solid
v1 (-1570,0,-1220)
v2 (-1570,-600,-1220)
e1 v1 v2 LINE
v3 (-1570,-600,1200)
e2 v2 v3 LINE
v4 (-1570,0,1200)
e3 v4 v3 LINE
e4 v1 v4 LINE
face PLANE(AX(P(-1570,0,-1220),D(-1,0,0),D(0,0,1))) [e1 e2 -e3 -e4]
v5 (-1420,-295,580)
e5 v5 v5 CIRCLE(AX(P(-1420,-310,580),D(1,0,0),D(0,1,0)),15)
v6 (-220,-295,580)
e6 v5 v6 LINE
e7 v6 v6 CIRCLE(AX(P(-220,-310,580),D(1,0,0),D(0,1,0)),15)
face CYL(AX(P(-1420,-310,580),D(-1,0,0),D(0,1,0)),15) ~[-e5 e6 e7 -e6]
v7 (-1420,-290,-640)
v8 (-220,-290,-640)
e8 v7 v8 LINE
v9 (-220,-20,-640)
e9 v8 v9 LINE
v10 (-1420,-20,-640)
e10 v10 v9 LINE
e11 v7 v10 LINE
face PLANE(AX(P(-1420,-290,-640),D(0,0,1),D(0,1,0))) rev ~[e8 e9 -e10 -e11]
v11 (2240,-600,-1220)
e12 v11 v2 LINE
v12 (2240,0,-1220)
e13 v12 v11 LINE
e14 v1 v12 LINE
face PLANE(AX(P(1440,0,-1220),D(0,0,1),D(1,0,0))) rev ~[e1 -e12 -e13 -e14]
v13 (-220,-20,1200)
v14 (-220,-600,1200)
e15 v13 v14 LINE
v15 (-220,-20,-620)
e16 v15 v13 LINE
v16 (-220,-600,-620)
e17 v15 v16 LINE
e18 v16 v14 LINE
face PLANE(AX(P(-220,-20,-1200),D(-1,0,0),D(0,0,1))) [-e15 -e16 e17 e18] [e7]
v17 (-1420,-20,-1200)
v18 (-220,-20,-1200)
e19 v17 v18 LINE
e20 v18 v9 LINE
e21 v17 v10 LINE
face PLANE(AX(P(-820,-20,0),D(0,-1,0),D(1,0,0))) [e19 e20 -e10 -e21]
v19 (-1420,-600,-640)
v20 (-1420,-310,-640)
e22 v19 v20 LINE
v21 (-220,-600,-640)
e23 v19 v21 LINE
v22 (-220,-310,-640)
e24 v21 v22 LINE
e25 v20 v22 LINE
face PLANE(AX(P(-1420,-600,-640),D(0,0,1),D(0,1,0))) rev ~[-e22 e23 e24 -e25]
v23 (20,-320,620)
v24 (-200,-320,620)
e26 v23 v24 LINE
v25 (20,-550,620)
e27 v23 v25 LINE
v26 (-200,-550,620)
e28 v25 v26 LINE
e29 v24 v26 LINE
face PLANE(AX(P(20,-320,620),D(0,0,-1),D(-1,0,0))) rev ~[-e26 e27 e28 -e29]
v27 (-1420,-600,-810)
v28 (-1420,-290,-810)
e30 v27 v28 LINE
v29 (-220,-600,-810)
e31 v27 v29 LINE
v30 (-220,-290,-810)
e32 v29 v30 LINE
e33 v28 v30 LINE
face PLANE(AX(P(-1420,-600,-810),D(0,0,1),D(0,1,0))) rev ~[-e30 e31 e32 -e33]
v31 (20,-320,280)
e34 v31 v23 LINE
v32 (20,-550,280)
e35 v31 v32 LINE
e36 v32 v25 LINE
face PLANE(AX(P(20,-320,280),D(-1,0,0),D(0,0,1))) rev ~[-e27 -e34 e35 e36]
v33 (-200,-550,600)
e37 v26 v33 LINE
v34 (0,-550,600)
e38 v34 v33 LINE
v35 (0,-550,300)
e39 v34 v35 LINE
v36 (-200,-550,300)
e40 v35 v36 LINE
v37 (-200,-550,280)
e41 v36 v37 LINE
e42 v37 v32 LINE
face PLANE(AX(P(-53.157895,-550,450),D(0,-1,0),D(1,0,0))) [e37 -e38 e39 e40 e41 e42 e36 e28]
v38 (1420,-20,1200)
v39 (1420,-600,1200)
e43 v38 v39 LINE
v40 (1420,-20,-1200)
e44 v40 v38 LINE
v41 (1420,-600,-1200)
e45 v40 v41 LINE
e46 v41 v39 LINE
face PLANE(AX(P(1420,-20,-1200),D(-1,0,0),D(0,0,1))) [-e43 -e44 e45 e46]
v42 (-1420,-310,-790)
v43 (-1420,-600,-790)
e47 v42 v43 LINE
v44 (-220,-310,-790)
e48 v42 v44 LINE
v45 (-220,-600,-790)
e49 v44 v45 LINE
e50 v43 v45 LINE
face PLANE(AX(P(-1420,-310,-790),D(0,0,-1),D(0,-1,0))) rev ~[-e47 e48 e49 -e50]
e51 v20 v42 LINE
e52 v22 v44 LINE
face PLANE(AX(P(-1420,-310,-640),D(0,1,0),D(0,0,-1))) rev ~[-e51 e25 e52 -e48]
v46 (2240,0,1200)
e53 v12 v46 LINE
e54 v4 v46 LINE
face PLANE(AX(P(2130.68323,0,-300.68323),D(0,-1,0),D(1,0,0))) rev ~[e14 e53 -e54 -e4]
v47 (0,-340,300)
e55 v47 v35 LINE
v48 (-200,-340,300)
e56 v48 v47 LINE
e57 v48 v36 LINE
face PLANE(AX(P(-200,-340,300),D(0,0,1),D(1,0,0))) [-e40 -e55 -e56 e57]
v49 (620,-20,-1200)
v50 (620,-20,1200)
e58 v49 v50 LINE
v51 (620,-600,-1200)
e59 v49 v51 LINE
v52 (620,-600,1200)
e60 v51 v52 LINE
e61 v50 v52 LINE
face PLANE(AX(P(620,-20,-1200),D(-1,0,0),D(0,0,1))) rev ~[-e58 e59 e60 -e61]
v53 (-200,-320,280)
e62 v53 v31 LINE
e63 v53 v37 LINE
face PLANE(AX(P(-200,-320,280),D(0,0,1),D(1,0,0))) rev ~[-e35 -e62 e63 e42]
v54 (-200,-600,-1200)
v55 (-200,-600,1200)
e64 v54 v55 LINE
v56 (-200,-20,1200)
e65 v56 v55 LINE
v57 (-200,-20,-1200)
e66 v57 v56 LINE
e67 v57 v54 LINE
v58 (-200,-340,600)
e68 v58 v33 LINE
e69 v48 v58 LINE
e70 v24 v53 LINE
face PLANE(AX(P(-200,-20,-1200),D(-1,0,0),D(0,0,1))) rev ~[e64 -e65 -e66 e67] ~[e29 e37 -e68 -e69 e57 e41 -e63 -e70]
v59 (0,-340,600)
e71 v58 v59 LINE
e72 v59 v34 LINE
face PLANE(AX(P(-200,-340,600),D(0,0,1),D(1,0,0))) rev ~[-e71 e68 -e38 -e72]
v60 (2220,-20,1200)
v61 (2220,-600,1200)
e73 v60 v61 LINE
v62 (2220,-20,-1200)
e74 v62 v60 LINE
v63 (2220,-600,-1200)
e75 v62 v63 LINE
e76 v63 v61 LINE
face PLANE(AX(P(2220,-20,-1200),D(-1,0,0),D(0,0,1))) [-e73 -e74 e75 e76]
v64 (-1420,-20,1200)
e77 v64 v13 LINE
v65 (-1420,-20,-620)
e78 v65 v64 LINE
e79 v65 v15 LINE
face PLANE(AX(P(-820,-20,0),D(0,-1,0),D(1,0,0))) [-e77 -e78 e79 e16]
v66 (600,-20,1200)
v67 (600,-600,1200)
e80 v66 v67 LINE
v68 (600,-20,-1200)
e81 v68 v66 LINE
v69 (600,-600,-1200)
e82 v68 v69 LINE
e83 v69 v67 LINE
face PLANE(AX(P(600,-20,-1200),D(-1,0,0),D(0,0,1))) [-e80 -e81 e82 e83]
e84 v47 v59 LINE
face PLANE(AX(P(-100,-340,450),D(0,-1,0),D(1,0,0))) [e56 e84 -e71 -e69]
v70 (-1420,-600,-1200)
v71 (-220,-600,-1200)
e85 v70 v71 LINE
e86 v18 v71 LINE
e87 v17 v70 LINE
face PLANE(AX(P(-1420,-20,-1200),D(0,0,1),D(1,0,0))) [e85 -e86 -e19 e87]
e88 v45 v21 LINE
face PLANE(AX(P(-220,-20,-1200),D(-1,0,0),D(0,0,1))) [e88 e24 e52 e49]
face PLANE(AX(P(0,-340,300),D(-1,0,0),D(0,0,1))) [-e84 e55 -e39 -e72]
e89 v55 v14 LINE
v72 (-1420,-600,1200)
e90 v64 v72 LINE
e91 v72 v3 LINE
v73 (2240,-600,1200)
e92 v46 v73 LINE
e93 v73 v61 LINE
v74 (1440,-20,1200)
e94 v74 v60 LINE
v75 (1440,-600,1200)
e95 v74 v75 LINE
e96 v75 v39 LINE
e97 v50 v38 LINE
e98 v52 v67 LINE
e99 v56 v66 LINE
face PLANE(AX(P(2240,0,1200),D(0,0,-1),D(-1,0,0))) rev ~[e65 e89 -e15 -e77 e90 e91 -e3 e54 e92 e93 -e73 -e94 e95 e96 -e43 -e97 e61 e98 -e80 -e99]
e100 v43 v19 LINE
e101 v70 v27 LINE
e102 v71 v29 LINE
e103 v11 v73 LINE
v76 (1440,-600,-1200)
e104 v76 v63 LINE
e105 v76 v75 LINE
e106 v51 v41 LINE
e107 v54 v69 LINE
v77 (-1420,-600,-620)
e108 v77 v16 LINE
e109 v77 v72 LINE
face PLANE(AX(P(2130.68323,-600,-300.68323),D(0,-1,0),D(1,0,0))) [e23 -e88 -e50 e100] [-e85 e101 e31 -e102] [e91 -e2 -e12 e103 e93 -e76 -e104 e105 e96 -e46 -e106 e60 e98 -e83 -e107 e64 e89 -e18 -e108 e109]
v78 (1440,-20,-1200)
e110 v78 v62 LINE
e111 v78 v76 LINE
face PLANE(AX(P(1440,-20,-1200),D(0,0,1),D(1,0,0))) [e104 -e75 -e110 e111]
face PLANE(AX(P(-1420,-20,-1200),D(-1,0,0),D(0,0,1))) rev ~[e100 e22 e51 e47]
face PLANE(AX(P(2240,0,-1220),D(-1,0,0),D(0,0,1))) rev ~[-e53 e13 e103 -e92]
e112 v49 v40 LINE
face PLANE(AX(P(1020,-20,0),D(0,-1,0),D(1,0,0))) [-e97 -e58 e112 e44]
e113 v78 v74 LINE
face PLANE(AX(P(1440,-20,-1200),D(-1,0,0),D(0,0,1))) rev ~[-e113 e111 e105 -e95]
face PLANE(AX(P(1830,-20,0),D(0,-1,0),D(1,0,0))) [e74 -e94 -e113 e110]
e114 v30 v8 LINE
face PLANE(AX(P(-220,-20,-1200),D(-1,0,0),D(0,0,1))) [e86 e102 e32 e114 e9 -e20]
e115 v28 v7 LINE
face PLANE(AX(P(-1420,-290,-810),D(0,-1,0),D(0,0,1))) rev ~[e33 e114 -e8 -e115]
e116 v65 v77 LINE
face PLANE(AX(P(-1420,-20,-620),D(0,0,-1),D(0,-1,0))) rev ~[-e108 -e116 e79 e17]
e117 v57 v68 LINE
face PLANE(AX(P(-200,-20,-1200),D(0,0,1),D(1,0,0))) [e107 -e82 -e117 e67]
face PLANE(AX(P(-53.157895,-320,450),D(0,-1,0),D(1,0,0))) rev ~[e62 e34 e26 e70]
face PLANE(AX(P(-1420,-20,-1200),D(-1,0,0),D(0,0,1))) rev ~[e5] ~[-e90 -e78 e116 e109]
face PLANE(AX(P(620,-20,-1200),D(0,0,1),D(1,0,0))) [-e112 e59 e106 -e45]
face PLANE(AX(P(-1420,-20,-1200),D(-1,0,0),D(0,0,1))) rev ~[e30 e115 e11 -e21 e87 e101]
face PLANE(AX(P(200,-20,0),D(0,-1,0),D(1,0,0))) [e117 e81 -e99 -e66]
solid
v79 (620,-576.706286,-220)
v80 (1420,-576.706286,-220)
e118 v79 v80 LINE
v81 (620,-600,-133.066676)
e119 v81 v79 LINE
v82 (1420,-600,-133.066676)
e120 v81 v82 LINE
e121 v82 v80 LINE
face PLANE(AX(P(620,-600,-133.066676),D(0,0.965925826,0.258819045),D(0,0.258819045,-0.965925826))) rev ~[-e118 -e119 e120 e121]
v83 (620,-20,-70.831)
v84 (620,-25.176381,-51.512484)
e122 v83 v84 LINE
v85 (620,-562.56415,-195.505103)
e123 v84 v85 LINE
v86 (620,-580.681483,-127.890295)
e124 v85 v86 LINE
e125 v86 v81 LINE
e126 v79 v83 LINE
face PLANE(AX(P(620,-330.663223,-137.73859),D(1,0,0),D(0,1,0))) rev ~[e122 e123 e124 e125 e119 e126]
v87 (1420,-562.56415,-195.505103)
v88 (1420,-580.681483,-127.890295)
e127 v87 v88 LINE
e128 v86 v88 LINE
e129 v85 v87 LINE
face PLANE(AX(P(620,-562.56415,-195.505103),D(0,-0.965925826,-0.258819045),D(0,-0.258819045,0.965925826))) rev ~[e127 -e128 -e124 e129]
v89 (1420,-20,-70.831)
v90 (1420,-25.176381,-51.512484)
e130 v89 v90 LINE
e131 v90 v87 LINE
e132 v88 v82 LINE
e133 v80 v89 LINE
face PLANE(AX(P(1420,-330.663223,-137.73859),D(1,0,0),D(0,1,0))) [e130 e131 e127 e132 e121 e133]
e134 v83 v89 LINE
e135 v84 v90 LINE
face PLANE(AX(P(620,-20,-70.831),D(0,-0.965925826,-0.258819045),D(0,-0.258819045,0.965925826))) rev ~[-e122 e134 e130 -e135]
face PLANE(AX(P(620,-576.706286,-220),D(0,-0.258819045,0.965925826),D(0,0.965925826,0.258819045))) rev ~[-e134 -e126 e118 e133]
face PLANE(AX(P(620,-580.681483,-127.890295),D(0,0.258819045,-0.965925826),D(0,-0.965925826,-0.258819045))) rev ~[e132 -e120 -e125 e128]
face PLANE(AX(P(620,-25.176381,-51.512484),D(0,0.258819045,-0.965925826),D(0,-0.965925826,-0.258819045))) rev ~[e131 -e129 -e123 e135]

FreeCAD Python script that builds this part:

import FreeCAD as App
import Part
import Sketcher
Q = App.Units.Quantity


def add_polygon(sketch, points):
    """Adds a closed chain of lines whose ends are joined by coincident constraints."""
    first, n = sketch.GeometryCount, len(points)
    for a, b in zip(points, points[1:] + points[:1]):
        sketch.addGeometry(Part.LineSegment(App.Vector(*a, 0), App.Vector(*b, 0)), False)
    for i in range(n):
        sketch.addConstraint(Sketcher.Constraint("Coincident", first + i, 2, first + (i + 1) % n, 1))

doc = App.newDocument("Part")
params = doc.addObject("Spreadsheet::Sheet", "Params")
for row, (alias, value) in enumerate([
    ("sketch1_width", "3010 mm"),
    ("sketch1_height", "2420 mm"),
    ("pad1_length", "600 mm"),
    ("sketch2_width", "800 mm"),
    ("sketch2_width2", "1200 mm"),
    ("sketch2_height", "2400 mm"),
    ("pocket1_length", "580 mm"),
    ("sketch3_diameter", "30 mm"),
    ("sketch3_width", "580 mm"),
    ("sketch3_width2", "290 mm"),
    ("sketch3_width3", "310 mm"),
    ("sketch3_height", "20 mm"),
    ("pad2_length", "1200 mm"),
    ("sketch4_width", "220 mm"),
    ("sketch4_height", "340 mm"),
    ("pad3_length", "230 mm"),
    ("sketch5_width", "200 mm"),
    ("sketch5_height", "300 mm"),
    ("pocket2_length", "260 mm"),
    ("sketch6_width", "800 mm"),
    ("sketch6_height", "2420 mm"),
    ("pad4_length", "600 mm"),
    ("sketch7_width", "780 mm"),
    ("sketch7_height", "2400 mm"),
    ("pocket3_length", "580 mm"),
    ("sketch8_length", "20 mm"),
    ("sketch8_length2", "90 mm"),
    ("pad5_length", "800 mm"),
], start=1):
    params.set(f"A{row}", alias)
    params.set(f"B{row}", "=" + value)
    params.setAlias(f"B{row}", alias)

body = doc.addObject("PartDesign::Body", "Body")

# Sketch on XZ plane
sketch1 = doc.addObject("Sketcher::SketchObject", "Sketch")
body.addObject(sketch1)
sketch1.AttachmentSupport = (doc.XZ_Plane, [""])
sketch1.MapMode = "FlatFace"
add_polygon(sketch1, [(-1570, 1200), (-1570, -1220), (1440, -1220), (1440, 1200)])  # lines 0-3
sketch1.addConstraint([
    Sketcher.Constraint("Vertical", 0),
    Sketcher.Constraint("Horizontal", 1),
    Sketcher.Constraint("Vertical", 2),
    Sketcher.Constraint("Horizontal", 3),
    Sketcher.Constraint("DistanceX", 1, 1, 1, 2, 3010.0),
    Sketcher.Constraint("DistanceY", 0, 2, 0, 1, 2420.0),
    Sketcher.Constraint("DistanceX", 0, 2, -1, 1, 1570.0),
    Sketcher.Constraint("DistanceY", 0, 2, -1, 1, 1220.0),
])
sketch1.setExpression("Constraints[8]", "Params.sketch1_width")
sketch1.setExpression("Constraints[9]", "Params.sketch1_height")
pad1 = doc.addObject("PartDesign::Pad", "Pad")
body.addObject(pad1)
pad1.Profile = sketch1
pad1.setExpression("Length", "Params.pad1_length")

# Sketch on XZ plane
sketch2 = doc.addObject("Sketcher::SketchObject", "Sketch001")
body.addObject(sketch2)
sketch2.AttachmentSupport = (doc.XZ_Plane, [""])
sketch2.MapMode = "FlatFace"
sketch2.AttachmentOffset = App.Placement(App.Vector(0, 0, 20), App.Rotation())
add_polygon(sketch2, [(620, 1200), (620, -1200), (1420, -1200), (1420, 1200)])  # lines 0-3
add_polygon(sketch2, [(-200, 1200), (-200, -1200), (600, -1200), (600, 1200)])  # lines 4-7
add_polygon(sketch2, [(-1420, 1200), (-1420, -1200), (-220, -1200), (-220, 1200)])  # lines 8-11
sketch2.addConstraint([
    Sketcher.Constraint("Vertical", 0),
    Sketcher.Constraint("Horizontal", 1),
    Sketcher.Constraint("Vertical", 2),
    Sketcher.Constraint("Horizontal", 3),
    Sketcher.Constraint("Vertical", 4),
    Sketcher.Constraint("Horizontal", 5),
    Sketcher.Constraint("Vertical", 6),
    Sketcher.Constraint("Horizontal", 7),
    Sketcher.Constraint("Vertical", 8),
    Sketcher.Constraint("Horizontal", 9),
    Sketcher.Constraint("Vertical", 10),
    Sketcher.Constraint("Horizontal", 11),
    Sketcher.Constraint("Symmetric", 2, 2, 8, 2, -1, 1),
    Sketcher.Constraint("Horizontal", 1, 2, 4, 2),
    Sketcher.Constraint("Horizontal", 3, 2, 6, 2),
    Sketcher.Constraint("Horizontal", 5, 2, 8, 2),
    Sketcher.Constraint("Horizontal", 7, 2, 10, 2),
    Sketcher.Constraint("Equal", 3, 5),
    Sketcher.Constraint("DistanceX", 1, 1, 1, 2, 800.0),
    Sketcher.Constraint("DistanceX", 9, 1, 9, 2, 1200.0),
    Sketcher.Constraint("DistanceY", 0, 2, 0, 1, 2400.0),
    Sketcher.Constraint("DistanceX", -1, 1, 0, 2, 620.0),
    Sketcher.Constraint("DistanceX", 4, 2, -1, 1, 200.0),
])
sketch2.setExpression("Constraints[30]", "Params.sketch2_width")
sketch2.setExpression("Constraints[31]", "Params.sketch2_width2")
sketch2.setExpression("Constraints[32]", "Params.sketch2_height")
pocket1 = doc.addObject("PartDesign::Pocket", "Pocket")
body.addObject(pocket1)
pocket1.Profile = sketch2
pocket1.setExpression("Length", "Params.pocket1_length")
pocket1.Reversed = True

# Sketch on YZ plane
sketch3 = doc.addObject("Sketcher::SketchObject", "Sketch002")
body.addObject(sketch3)
sketch3.AttachmentSupport = (doc.YZ_Plane, [""])
sketch3.MapMode = "FlatFace"
sketch3.AttachmentOffset = App.Placement(App.Vector(0, 0, -1420), App.Rotation())
sketch3.addGeometry(Part.Circle(App.Vector(-310, 580, 0), App.Vector(0, 0, 1), 15), False)  # 0
add_polygon(sketch3, [(-20, -620), (-600, -620), (-600, -640), (-310, -640), (-310, -790), (-600, -790), (-600, -810), (-290, -810), (-290, -640), (-20, -640)])  # lines 1-10
sketch3.addConstraint([
    Sketcher.Constraint("Horizontal", 1),
    Sketcher.Constraint("Vertical", 2),
    Sketcher.Constraint("Horizontal", 3),
    Sketcher.Constraint("Vertical", 4),
    Sketcher.Constraint("Horizontal", 5),
    Sketcher.Constraint("Vertical", 6),
    Sketcher.Constraint("Horizontal", 7),
    Sketcher.Constraint("Vertical", 8),
    Sketcher.Constraint("Horizontal", 9),
    Sketcher.Constraint("Vertical", 10),
    Sketcher.Constraint("Horizontal", 3, 2, 8, 2),
    Sketcher.Constraint("Vertical", 0, 3, 3, 2),
    Sketcher.Constraint("Vertical", 2, 2, 5, 2),
    Sketcher.Constraint("Equal", 2, 6),
    Sketcher.Constraint("Diameter", 0, 30.0),
    Sketcher.Constraint("DistanceX", 1, 2, 1, 1, 580.0),
    Sketcher.Constraint("DistanceX", 3, 1, 3, 2, 290.0),
    Sketcher.Constraint("DistanceX", 7, 1, 7, 2, 310.0),
    Sketcher.Constraint("DistanceY", 2, 2, 2, 1, 20.0),
    Sketcher.Constraint("DistanceY", 4, 2, 4, 1, 150.0),
    Sketcher.Constraint("DistanceX", 0, 3, -1, 1, 310.0),
    Sketcher.Constraint("DistanceY", -1, 1, 0, 3, 580.0),
    Sketcher.Constraint("DistanceY", 1, 2, -1, 1, 620.0),
])
sketch3.setExpression("Constraints[24]", "Params.sketch3_diameter")
sketch3.setExpression("Constraints[25]", "Params.sketch3_width")
sketch3.setExpression("Constraints[26]", "Params.sketch3_width2")
sketch3.setExpression("Constraints[27]", "Params.sketch3_width3")
sketch3.setExpression("Constraints[28]", "Params.sketch3_height")
pad2 = doc.addObject("PartDesign::Pad", "Pad001")
body.addObject(pad2)
pad2.Profile = sketch3
pad2.setExpression("Length", "Params.pad2_length")

# Sketch on XZ plane
sketch4 = doc.addObject("Sketcher::SketchObject", "Sketch003")
body.addObject(sketch4)
sketch4.AttachmentSupport = (doc.XZ_Plane, [""])
sketch4.MapMode = "FlatFace"
sketch4.AttachmentOffset = App.Placement(App.Vector(0, 0, 320), App.Rotation())
add_polygon(sketch4, [(-200, 620), (-200, 280), (20, 280), (20, 620)])  # lines 0-3
sketch4.addConstraint([
    Sketcher.Constraint("Vertical", 0),
    Sketcher.Constraint("Horizontal", 1),
    Sketcher.Constraint("Vertical", 2),
    Sketcher.Constraint("Horizontal", 3),
    Sketcher.Constraint("DistanceX", 1, 1, 1, 2, 220.0),
    Sketcher.Constraint("DistanceY", 0, 2, 0, 1, 340.0),
    Sketcher.Constraint("DistanceX", 0, 2, -1, 1, 200.0),
    Sketcher.Constraint("DistanceY", -1, 1, 0, 2, 280.0),
])
sketch4.setExpression("Constraints[8]", "Params.sketch4_width")
sketch4.setExpression("Constraints[9]", "Params.sketch4_height")
pad3 = doc.addObject("PartDesign::Pad", "Pad002")
body.addObject(pad3)
pad3.Profile = sketch4
pad3.setExpression("Length", "Params.pad3_length")

# Sketch on XZ plane
sketch5 = doc.addObject("Sketcher::SketchObject", "Sketch004")
body.addObject(sketch5)
sketch5.AttachmentSupport = (doc.XZ_Plane, [""])
sketch5.MapMode = "FlatFace"
sketch5.AttachmentOffset = App.Placement(App.Vector(0, 0, 340), App.Rotation())
add_polygon(sketch5, [(-200, 600), (-200, 300), (0, 300), (0, 600)])  # lines 0-3
sketch5.addConstraint([
    Sketcher.Constraint("Vertical", 0),
    Sketcher.Constraint("Horizontal", 1),
    Sketcher.Constraint("Vertical", 2),
    Sketcher.Constraint("Horizontal", 3),
    Sketcher.Constraint("PointOnObject", 1, 2, -2),
    Sketcher.Constraint("DistanceX", 1, 1, 1, 2, 200.0),
    Sketcher.Constraint("DistanceY", 0, 2, 0, 1, 300.0),
    Sketcher.Constraint("DistanceY", -1, 1, 0, 2, 300.0),
])
sketch5.setExpression("Constraints[9]", "Params.sketch5_width")
sketch5.setExpression("Constraints[10]", "Params.sketch5_height")
pocket2 = doc.addObject("PartDesign::Pocket", "Pocket001")
body.addObject(pocket2)
pocket2.Profile = sketch5
pocket2.setExpression("Length", "Params.pocket2_length")
pocket2.Reversed = True

# Sketch on XZ plane
sketch6 = doc.addObject("Sketcher::SketchObject", "Sketch005")
body.addObject(sketch6)
sketch6.AttachmentSupport = (doc.XZ_Plane, [""])
sketch6.MapMode = "FlatFace"
add_polygon(sketch6, [(1440, -1220), (2240, -1220), (2240, 1200), (1440, 1200)])  # lines 0-3
sketch6.addConstraint([
    Sketcher.Constraint("Horizontal", 0),
    Sketcher.Constraint("Vertical", 1),
    Sketcher.Constraint("Horizontal", 2),
    Sketcher.Constraint("Vertical", 3),
    Sketcher.Constraint("DistanceX", 0, 1, 0, 2, 800.0),
    Sketcher.Constraint("DistanceY", 1, 1, 1, 2, 2420.0),
    Sketcher.Constraint("DistanceX", -1, 1, 0, 2, 2240.0),
    Sketcher.Constraint("DistanceY", 0, 2, -1, 1, 1220.0),
])
sketch6.setExpression("Constraints[8]", "Params.sketch6_width")
sketch6.setExpression("Constraints[9]", "Params.sketch6_height")
pad4 = doc.addObject("PartDesign::Pad", "Pad003")
body.addObject(pad4)
pad4.Profile = sketch6
pad4.setExpression("Length", "Params.pad4_length")

# Sketch on XZ plane
sketch7 = doc.addObject("Sketcher::SketchObject", "Sketch006")
body.addObject(sketch7)
sketch7.AttachmentSupport = (doc.XZ_Plane, [""])
sketch7.MapMode = "FlatFace"
sketch7.AttachmentOffset = App.Placement(App.Vector(0, 0, 20), App.Rotation())
add_polygon(sketch7, [(1440, 1200), (1440, -1200), (2220, -1200), (2220, 1200)])  # lines 0-3
sketch7.addConstraint([
    Sketcher.Constraint("Vertical", 0),
    Sketcher.Constraint("Horizontal", 1),
    Sketcher.Constraint("Vertical", 2),
    Sketcher.Constraint("Horizontal", 3),
    Sketcher.Constraint("DistanceX", 1, 1, 1, 2, 780.0),
    Sketcher.Constraint("DistanceY", 0, 2, 0, 1, 2400.0),
    Sketcher.Constraint("DistanceX", -1, 1, 0, 2, 1440.0),
    Sketcher.Constraint("DistanceY", 0, 2, -1, 1, 1200.0),
])
sketch7.setExpression("Constraints[8]", "Params.sketch7_width")
sketch7.setExpression("Constraints[9]", "Params.sketch7_height")
pocket3 = doc.addObject("PartDesign::Pocket", "Pocket002")
body.addObject(pocket3)
pocket3.Profile = sketch7
pocket3.setExpression("Length", "Params.pocket3_length")
pocket3.Reversed = True
body2 = doc.addObject("PartDesign::Body", "Body001")

# Sketch on YZ plane
sketch8 = doc.addObject("Sketcher::SketchObject", "Sketch007")
body2.addObject(sketch8)
sketch8.AttachmentSupport = (doc.getObject("YZ_Plane001"), [""])
sketch8.MapMode = "FlatFace"
sketch8.AttachmentOffset = App.Placement(App.Vector(0, 0, 620), App.Rotation())
add_polygon(sketch8, [(-581, -128), (-600, -133), (-577, -220), (-20, -71), (-25, -52), (-563, -196)])  # lines 0-5
sketch8.addConstraint([
    Sketcher.Constraint("Perpendicular", 0, 1),
    Sketcher.Constraint("Perpendicular", 1, 2),
    Sketcher.Constraint("Perpendicular", 2, 3),
    Sketcher.Constraint("Perpendicular", 3, 4),
    Sketcher.Constraint("Perpendicular", 4, 5),
    Sketcher.Constraint("Equal", 0, 3),
    Sketcher.Constraint("Angle", 0, Q("-165 deg")),
    Sketcher.Constraint("Distance", 0, 20.0),
    Sketcher.Constraint("Distance", 1, 90.0),
    Sketcher.Constraint("DistanceX", 0, 2, -1, 1, 600.0),
    Sketcher.Constraint("DistanceY", 1, 2, -1, 1, 220.0),
    Sketcher.Constraint("DistanceX", 2, 2, -1, 1, 20.0),
])
sketch8.setExpression("Constraints[13]", "Params.sketch8_length")
sketch8.setExpression("Constraints[14]", "Params.sketch8_length2")
pad5 = doc.addObject("PartDesign::Pad", "Pad004")
body2.addObject(pad5)
pad5.Profile = sketch8
pad5.setExpression("Length", "Params.pad5_length")

doc.recompute()
